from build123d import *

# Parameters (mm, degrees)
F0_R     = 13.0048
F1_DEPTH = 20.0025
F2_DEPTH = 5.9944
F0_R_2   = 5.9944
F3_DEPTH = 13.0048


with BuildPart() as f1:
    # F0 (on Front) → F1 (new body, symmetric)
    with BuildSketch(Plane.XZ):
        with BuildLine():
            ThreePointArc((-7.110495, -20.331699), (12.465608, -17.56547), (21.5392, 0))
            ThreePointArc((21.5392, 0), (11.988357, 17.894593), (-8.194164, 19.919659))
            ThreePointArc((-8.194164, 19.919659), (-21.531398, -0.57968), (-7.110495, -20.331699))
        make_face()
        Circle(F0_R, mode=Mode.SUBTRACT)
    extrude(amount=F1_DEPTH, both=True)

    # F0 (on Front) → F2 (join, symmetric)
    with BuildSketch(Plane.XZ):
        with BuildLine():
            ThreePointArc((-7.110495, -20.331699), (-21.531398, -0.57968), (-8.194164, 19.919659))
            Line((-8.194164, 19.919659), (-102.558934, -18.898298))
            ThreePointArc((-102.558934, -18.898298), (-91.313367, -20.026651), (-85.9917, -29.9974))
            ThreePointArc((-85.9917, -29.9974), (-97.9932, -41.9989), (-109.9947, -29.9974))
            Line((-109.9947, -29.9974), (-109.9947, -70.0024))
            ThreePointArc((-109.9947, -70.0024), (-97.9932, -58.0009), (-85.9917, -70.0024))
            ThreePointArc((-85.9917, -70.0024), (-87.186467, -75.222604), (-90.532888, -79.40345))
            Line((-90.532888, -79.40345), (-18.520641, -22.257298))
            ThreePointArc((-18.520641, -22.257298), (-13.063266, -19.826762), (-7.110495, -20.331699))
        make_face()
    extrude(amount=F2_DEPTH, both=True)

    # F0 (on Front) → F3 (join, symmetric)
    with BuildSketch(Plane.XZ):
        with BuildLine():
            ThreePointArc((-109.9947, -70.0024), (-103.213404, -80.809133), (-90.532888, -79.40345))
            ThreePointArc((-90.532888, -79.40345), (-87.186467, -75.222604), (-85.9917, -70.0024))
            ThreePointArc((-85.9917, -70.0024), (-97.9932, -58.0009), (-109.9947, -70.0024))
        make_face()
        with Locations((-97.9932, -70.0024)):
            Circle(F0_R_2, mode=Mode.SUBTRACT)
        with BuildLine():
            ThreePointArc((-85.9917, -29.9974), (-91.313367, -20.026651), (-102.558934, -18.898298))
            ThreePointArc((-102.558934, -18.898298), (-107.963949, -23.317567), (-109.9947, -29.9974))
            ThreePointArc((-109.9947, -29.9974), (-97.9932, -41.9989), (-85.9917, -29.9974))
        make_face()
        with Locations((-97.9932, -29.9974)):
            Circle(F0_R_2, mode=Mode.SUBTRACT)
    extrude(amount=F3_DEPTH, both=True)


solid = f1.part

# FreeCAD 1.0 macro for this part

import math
import FreeCAD as App
import Part
import Sketcher

V = App.Vector
Q = App.Units.Quantity

doc = App.newDocument("Part")
body = doc.addObject("PartDesign::Body", "Body")

# Sketch on XZ plane
sketch1 = doc.addObject("Sketcher::SketchObject", "Sketch")
body.addObject(sketch1)
sketch1.AttachmentSupport = (doc.XZ_Plane, [""])
sketch1.MapMode = "FlatFace"
sketch1.addGeometry([
    Part.ArcOfCircle(Part.Circle(V(0, 0.000001, 0), V(0, 0, 1), 21.5392), math.radians(-109.275986), math.radians(-0.000002)),
    Part.ArcOfCircle(Part.Circle(V(0.000001, 0.000001, 0), V(0, 0, 1), 21.539199), math.radians(-0.000003), math.radians(112.360341)),
    Part.ArcOfCircle(Part.Circle(V(0, 0, 0), V(0, 0, 1), 21.5392), math.radians(112.360338), math.radians(250.724013)),
    Part.Circle(V(0, 0, 0), V(0, 0, 1), 13.0048),
], False)
sketch1.addConstraint([
    Sketcher.Constraint("Tangent", 0, 2, 1, 1),
    Sketcher.Constraint("Tangent", 1, 2, 2, 1),
    Sketcher.Constraint("Tangent", 2, 2, 0, 1),
    Sketcher.Constraint("Coincident", 0, 3, -1, 1),
    Sketcher.Constraint("Coincident", 3, 3, -1, 1),
    Sketcher.Constraint("PointOnObject", 0, 2, -1),
    Sketcher.Constraint("Diameter", 3, Q("1.024 in")),
    Sketcher.Constraint("Radius", 0, Q("0.848 in")),
    Sketcher.Constraint("DistanceY", 2, 2, -1, 1, Q("20.331699 mm")),
    Sketcher.Constraint("DistanceY", -1, 1, 1, 2, Q("19.919659 mm")),
])
pad1 = doc.addObject("PartDesign::Pad", "Pad")
body.addObject(pad1)
pad1.Profile = sketch1
pad1.Length = Q("1.575 in")
pad1.Midplane = True

# Sketch on XZ plane
sketch2 = doc.addObject("Sketcher::SketchObject", "Sketch001")
body.addObject(sketch2)
sketch2.AttachmentSupport = (doc.XZ_Plane, [""])
sketch2.MapMode = "FlatFace"
sketch2.addGeometry([
    Part.ArcOfCircle(Part.Circle(V(0, 0, 0), V(0, 0, 1), 21.5392), math.radians(112.360338), math.radians(250.724013)),  # 0
    Part.LineSegment(V(-8.194164, 19.919659, 0), V(-102.558934, -18.898298, 0)),  # 1
    Part.ArcOfCircle(Part.Circle(V(-97.993199, -29.9974, 0), V(0, 0, 1), 12.001499), math.radians(-0.000002), math.radians(112.360342)),  # 2
    Part.ArcOfCircle(Part.Circle(V(-97.9932, -29.9974, 0), V(0, 0, 1), 12.0015), math.radians(180), math.radians(360)),  # 3
    Part.LineSegment(V(-109.9947, -29.9974, 0), V(-109.9947, -70.0024, 0)),  # 4
    Part.ArcOfCircle(Part.Circle(V(-97.9932, -70.0024, 0), V(0, 0, 1), 12.0015), math.radians(0), math.radians(180)),  # 5
    Part.ArcOfCircle(Part.Circle(V(-97.993197, -70.002401, 0), V(0, 0, 1), 12.001497), math.radians(-51.565844), math.radians(0.000006)),  # 6
    Part.LineSegment(V(-90.532888, -79.40345, 0), V(-18.520641, -22.257298, 0)),  # 7
    Part.ArcOfCircle(Part.Circle(V(-11.068222, -31.648403, 0), V(0, 0, 1), 11.988803), math.radians(70.724024), math.radians(128.434159)),  # 8
], False)
sketch2.addConstraint([
    Sketcher.Constraint("Tangent", 0, 1, 1, 1),
    Sketcher.Constraint("Tangent", 1, 2, 2, 2),
    Sketcher.Constraint("Tangent", 2, 1, 3, 2),
    Sketcher.Constraint("Tangent", 3, 1, 4, 1),
    Sketcher.Constraint("Tangent", 4, 2, 5, 2),
    Sketcher.Constraint("Tangent", 5, 1, 6, 2),
    Sketcher.Constraint("Tangent", 6, 1, 7, 1),
    Sketcher.Constraint("Tangent", 7, 2, 8, 2),
    Sketcher.Constraint("Tangent", 8, 1, 0, 2),
    Sketcher.Constraint("Vertical", 4),
    Sketcher.Constraint("Coincident", 0, 3, -1, 1),
    Sketcher.Constraint("Equal", 2, 3),
    Sketcher.Constraint("Equal", 3, 5),
    Sketcher.Constraint("Horizontal", 3, 3, 2, 1),
    Sketcher.Constraint("Horizontal", 4, 2, 5, 1),
    Sketcher.Constraint("Radius", 0, Q("0.848 in")),
    Sketcher.Constraint("Radius", 8, Q("0.4720001 in")),
    Sketcher.Constraint("Radius", 2, Q("0.4725 in")),
    Sketcher.Constraint("Radius", 6, Q("0.4724999 in")),
    Sketcher.Constraint("DistanceY", 4, 2, 4, 1, Q("1.575 in")),
    Sketcher.Constraint("DistanceY", 6, 3, 8, 3, Q("1.5099999 in")),
    Sketcher.Constraint("DistanceX", 2, 3, -1, 1, Q("3.858 in")),
    Sketcher.Constraint("DistanceY", 2, 3, -1, 1, Q("1.181 in")),
])
pad2 = doc.addObject("PartDesign::Pad", "Pad001")
body.addObject(pad2)
pad2.Profile = sketch2
pad2.Length = Q("0.472 in")
pad2.Midplane = True

# Sketch on XZ plane
sketch3 = doc.addObject("Sketcher::SketchObject", "Sketch002")
body.addObject(sketch3)
sketch3.AttachmentSupport = (doc.XZ_Plane, [""])
sketch3.MapMode = "FlatFace"
sketch3.addGeometry([
    Part.ArcOfCircle(Part.Circle(V(-97.9932, -70.002401, 0), V(0, 0, 1), 12.0015), math.radians(179.999998), math.radians(308.434168)),  # 0
    Part.ArcOfCircle(Part.Circle(V(-97.993197, -70.002401, 0), V(0, 0, 1), 12.001497), math.radians(-51.565844), math.radians(0.000006)),  # 1
    Part.ArcOfCircle(Part.Circle(V(-97.9932, -70.0024, 0), V(0, 0, 1), 12.0015), math.radians(0), math.radians(180)),  # 2
    Part.Circle(V(-97.9932, -70.0024, 0), V(0, 0, 1), 5.9944),  # 3
    Part.ArcOfCircle(Part.Circle(V(-97.993199, -29.9974, 0), V(0, 0, 1), 12.001499), math.radians(-0.000002), math.radians(112.360342)),  # 4
    Part.ArcOfCircle(Part.Circle(V(-97.993202, -29.997399, 0), V(0, 0, 1), 12.001498), math.radians(112.360332), math.radians(180.000003)),  # 5
    Part.ArcOfCircle(Part.Circle(V(-97.9932, -29.9974, 0), V(0, 0, 1), 12.0015), math.radians(180), math.radians(360)),  # 6
    Part.Circle(V(-97.9932, -29.9974, 0), V(0, 0, 1), 5.9944),  # 7
], False)
sketch3.addConstraint([
    Sketcher.Constraint("Tangent", 0, 2, 1, 1),
    Sketcher.Constraint("Tangent", 1, 2, 2, 1),
    Sketcher.Constraint("Tangent", 2, 2, 0, 1),
    Sketcher.Constraint("Tangent", 4, 2, 5, 1),
    Sketcher.Constraint("Tangent", 5, 2, 6, 1),
    Sketcher.Constraint("Tangent", 6, 2, 4, 1),
    Sketcher.Constraint("Coincident", 3, 3, 0, 3),
    Sketcher.Constraint("Coincident", 7, 3, 4, 3),
    Sketcher.Constraint("Equal", 2, 4),
    Sketcher.Constraint("Equal", 3, 7),
    Sketcher.Constraint("Horizontal", 3, 3, 1, 2),
    Sketcher.Constraint("Horizontal", 1, 2, 2, 2),
    Sketcher.Constraint("Horizontal", 7, 3, 5, 2),
    Sketcher.Constraint("Horizontal", 5, 2, 6, 2),
    Sketcher.Constraint("Vertical", 3, 3, 4, 3),
    Sketcher.Constraint("Diameter", 3, Q("0.472 in")),
    Sketcher.Constraint("Radius", 0, Q("0.4725 in")),
    Sketcher.Constraint("DistanceX", 0, 3, -1, 1, Q("3.858 in")),
    Sketcher.Constraint("DistanceY", 0, 3, -1, 1, Q("2.756 in")),
    Sketcher.Constraint("DistanceY", 4, 3, -1, 1, Q("1.181 in")),
    Sketcher.Constraint("DistanceY", 5, 3, 4, 2, Q("11.099101 mm")),
    Sketcher.Constraint("DistanceX", 0, 2, -1, 1, Q("90.532888 mm")),
])
pad3 = doc.addObject("PartDesign::Pad", "Pad002")
body.addObject(pad3)
pad3.Profile = sketch3
pad3.Length = Q("1.024 in")
pad3.Midplane = True

doc.recompute()
